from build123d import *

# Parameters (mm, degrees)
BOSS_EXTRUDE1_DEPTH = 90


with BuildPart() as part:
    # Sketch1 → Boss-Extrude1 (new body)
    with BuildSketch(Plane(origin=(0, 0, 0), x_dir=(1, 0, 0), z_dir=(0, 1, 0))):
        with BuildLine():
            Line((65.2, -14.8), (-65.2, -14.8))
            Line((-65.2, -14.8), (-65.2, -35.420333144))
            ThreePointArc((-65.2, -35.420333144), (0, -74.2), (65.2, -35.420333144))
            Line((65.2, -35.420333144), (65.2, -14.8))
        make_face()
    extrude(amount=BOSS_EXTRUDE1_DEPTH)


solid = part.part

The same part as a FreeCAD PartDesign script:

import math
import FreeCAD as App
import Part
import Sketcher

V = App.Vector

doc = App.newDocument("Part")
body = doc.addObject("PartDesign::Body", "Body")

# Sketch on XZ plane
sketch1 = doc.addObject("Sketcher::SketchObject", "Sketch")
body.addObject(sketch1)
sketch1.AttachmentSupport = (doc.XZ_Plane, [""])
sketch1.MapMode = "FlatFace"
sketch1.addGeometry([
    Part.LineSegment(V(65, 15, 0), V(-65, 15, 0)),
    Part.LineSegment(V(-65, 15, 0), V(-65, 35, 0)),
    Part.ArcOfCircle(Part.Circle(V(0, 0, 0), V(0, 0, 1), 74), math.radians(29), math.radians(151)),
    Part.LineSegment(V(65, 35, 0), V(65, 15, 0)),
], False)
sketch1.addConstraint([
    Sketcher.Constraint("Coincident", 0, 2, 1, 1),
    Sketcher.Constraint("Coincident", 1, 2, 2, 2),
    Sketcher.Constraint("Coincident", 2, 1, 3, 1),
    Sketcher.Constraint("Coincident", 3, 2, 0, 1),
    Sketcher.Constraint("Horizontal", 0),
    Sketcher.Constraint("Vertical", 1),
    Sketcher.Constraint("Vertical", 3),
    Sketcher.Constraint("Coincident", 2, 3, -1, 1),
    Sketcher.Constraint("Horizontal", 1, 2, 2, 1),
    Sketcher.Constraint("Radius", 2, 74.2),
    Sketcher.Constraint("DistanceX", 0, 2, 0, 1, 130.4),
    Sketcher.Constraint("DistanceY", -1, 1, 0, 2, 14.8),
])
pad1 = doc.addObject("PartDesign::Pad", "Pad")
body.addObject(pad1)
pad1.Profile = sketch1
pad1.Length = 90
pad1.Reversed = True

doc.recompute()
